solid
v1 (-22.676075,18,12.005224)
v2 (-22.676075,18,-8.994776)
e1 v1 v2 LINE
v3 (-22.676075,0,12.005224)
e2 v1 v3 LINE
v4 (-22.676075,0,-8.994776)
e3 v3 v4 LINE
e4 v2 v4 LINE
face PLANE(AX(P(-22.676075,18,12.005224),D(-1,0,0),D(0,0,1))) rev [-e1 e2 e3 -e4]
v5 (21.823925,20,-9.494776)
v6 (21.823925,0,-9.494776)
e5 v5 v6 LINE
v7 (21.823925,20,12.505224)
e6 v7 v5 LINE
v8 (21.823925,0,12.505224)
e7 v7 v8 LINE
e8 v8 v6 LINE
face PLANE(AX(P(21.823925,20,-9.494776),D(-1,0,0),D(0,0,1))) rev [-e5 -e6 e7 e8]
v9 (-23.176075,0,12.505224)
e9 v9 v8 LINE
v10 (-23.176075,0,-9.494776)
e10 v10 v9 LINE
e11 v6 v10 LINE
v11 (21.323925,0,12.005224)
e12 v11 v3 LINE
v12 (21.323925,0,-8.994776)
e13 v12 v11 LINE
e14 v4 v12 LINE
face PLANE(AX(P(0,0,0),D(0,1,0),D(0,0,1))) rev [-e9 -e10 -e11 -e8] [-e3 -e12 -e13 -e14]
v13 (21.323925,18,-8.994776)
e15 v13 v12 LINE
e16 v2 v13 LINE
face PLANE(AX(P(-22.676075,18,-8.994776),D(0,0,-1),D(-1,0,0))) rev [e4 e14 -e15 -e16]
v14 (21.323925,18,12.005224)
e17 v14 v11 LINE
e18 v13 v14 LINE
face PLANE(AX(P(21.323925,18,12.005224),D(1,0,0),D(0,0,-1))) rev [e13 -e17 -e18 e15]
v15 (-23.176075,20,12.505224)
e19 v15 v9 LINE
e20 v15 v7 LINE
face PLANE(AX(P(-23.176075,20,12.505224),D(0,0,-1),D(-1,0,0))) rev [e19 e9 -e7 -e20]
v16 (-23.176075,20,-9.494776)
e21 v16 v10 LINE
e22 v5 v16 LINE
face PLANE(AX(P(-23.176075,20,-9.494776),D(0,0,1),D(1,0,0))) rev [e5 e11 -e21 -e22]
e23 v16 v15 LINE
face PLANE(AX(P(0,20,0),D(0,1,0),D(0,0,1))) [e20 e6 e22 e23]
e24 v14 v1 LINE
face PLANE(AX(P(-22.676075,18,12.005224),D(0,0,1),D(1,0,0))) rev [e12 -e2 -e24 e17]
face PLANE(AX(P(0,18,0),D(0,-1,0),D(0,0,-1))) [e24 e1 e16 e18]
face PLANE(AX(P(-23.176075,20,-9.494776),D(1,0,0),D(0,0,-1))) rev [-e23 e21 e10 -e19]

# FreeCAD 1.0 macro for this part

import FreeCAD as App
import Part
import Sketcher

V = App.Vector

doc = App.newDocument("Part")
body = doc.addObject("PartDesign::Body", "Body")

# Sketch on XZ plane
sketch1 = body.newObject("Sketcher::SketchObject", "Sketch")
sketch1.AttachmentSupport = (doc.getObject("XZ_Plane"), [""])
sketch1.MapMode = "FlatFace"
sketch1.addGeometry(Part.LineSegment(V(-23.176075, -9.494776, 0), V(-23.176075, 12.505224, 0)), False)
sketch1.addGeometry(Part.LineSegment(V(-23.176075, 12.505224, 0), V(21.823925, 12.505224, 0)), False)
sketch1.addGeometry(Part.LineSegment(V(21.823925, 12.505224, 0), V(21.823925, -9.494776, 0)), False)
sketch1.addGeometry(Part.LineSegment(V(21.823925, -9.494776, 0), V(-23.176075, -9.494776, 0)), False)
sketch1.addConstraint(Sketcher.Constraint("Coincident", 0, 2, 1, 1))
sketch1.addConstraint(Sketcher.Constraint("Coincident", 1, 2, 2, 1))
sketch1.addConstraint(Sketcher.Constraint("Coincident", 2, 2, 3, 1))
sketch1.addConstraint(Sketcher.Constraint("Coincident", 3, 2, 0, 1))
sketch1.addConstraint(Sketcher.Constraint("Vertical", 0))
sketch1.addConstraint(Sketcher.Constraint("Horizontal", 1))
sketch1.addConstraint(Sketcher.Constraint("Vertical", 2))
sketch1.addConstraint(Sketcher.Constraint("Horizontal", 3))
sketch1.addConstraint(Sketcher.Constraint("DistanceX", 1, 1, 1, 2, 45.0))
sketch1.addConstraint(Sketcher.Constraint("DistanceY", 0, 1, 0, 2, 22.0))
sketch1.addConstraint(Sketcher.Constraint("DistanceX", 0, 2, -1, 1, 23.176075))
sketch1.addConstraint(Sketcher.Constraint("DistanceY", -1, 1, 0, 2, 12.505224))
pad1 = body.newObject("PartDesign::Pad", "Pad")
pad1.Profile = sketch1
pad1.Length = 20
pad1.Reversed = True

# Sketch on XZ plane
sketch2 = body.newObject("Sketcher::SketchObject", "Sketch001")
sketch2.AttachmentSupport = (doc.getObject("XZ_Plane"), [""])
sketch2.MapMode = "FlatFace"
sketch2.addGeometry(Part.LineSegment(V(-22.676075, 12.005224, 0), V(-22.676075, -8.994776, 0)), False)
sketch2.addGeometry(Part.LineSegment(V(-22.676075, -8.994776, 0), V(21.323925, -8.994776, 0)), False)
sketch2.addGeometry(Part.LineSegment(V(21.323925, -8.994776, 0), V(21.323925, 12.005224, 0)), False)
sketch2.addGeometry(Part.LineSegment(V(21.323925, 12.005224, 0), V(-22.676075, 12.005224, 0)), False)
sketch2.addConstraint(Sketcher.Constraint("Coincident", 0, 2, 1, 1))
sketch2.addConstraint(Sketcher.Constraint("Coincident", 1, 2, 2, 1))
sketch2.addConstraint(Sketcher.Constraint("Coincident", 2, 2, 3, 1))
sketch2.addConstraint(Sketcher.Constraint("Coincident", 3, 2, 0, 1))
sketch2.addConstraint(Sketcher.Constraint("Vertical", 0))
sketch2.addConstraint(Sketcher.Constraint("Horizontal", 1))
sketch2.addConstraint(Sketcher.Constraint("Vertical", 2))
sketch2.addConstraint(Sketcher.Constraint("Horizontal", 3))
sketch2.addConstraint(Sketcher.Constraint("DistanceX", 1, 1, 1, 2, 44.0))
sketch2.addConstraint(Sketcher.Constraint("DistanceY", 0, 2, 0, 1, 21.0))
sketch2.addConstraint(Sketcher.Constraint("DistanceX", 0, 2, -1, 1, 22.676075))
sketch2.addConstraint(Sketcher.Constraint("DistanceY", 0, 2, -1, 1, 8.994776))
pocket1 = body.newObject("PartDesign::Pocket", "Pocket")
pocket1.Profile = sketch2
pocket1.Length = 18

doc.recompute()
